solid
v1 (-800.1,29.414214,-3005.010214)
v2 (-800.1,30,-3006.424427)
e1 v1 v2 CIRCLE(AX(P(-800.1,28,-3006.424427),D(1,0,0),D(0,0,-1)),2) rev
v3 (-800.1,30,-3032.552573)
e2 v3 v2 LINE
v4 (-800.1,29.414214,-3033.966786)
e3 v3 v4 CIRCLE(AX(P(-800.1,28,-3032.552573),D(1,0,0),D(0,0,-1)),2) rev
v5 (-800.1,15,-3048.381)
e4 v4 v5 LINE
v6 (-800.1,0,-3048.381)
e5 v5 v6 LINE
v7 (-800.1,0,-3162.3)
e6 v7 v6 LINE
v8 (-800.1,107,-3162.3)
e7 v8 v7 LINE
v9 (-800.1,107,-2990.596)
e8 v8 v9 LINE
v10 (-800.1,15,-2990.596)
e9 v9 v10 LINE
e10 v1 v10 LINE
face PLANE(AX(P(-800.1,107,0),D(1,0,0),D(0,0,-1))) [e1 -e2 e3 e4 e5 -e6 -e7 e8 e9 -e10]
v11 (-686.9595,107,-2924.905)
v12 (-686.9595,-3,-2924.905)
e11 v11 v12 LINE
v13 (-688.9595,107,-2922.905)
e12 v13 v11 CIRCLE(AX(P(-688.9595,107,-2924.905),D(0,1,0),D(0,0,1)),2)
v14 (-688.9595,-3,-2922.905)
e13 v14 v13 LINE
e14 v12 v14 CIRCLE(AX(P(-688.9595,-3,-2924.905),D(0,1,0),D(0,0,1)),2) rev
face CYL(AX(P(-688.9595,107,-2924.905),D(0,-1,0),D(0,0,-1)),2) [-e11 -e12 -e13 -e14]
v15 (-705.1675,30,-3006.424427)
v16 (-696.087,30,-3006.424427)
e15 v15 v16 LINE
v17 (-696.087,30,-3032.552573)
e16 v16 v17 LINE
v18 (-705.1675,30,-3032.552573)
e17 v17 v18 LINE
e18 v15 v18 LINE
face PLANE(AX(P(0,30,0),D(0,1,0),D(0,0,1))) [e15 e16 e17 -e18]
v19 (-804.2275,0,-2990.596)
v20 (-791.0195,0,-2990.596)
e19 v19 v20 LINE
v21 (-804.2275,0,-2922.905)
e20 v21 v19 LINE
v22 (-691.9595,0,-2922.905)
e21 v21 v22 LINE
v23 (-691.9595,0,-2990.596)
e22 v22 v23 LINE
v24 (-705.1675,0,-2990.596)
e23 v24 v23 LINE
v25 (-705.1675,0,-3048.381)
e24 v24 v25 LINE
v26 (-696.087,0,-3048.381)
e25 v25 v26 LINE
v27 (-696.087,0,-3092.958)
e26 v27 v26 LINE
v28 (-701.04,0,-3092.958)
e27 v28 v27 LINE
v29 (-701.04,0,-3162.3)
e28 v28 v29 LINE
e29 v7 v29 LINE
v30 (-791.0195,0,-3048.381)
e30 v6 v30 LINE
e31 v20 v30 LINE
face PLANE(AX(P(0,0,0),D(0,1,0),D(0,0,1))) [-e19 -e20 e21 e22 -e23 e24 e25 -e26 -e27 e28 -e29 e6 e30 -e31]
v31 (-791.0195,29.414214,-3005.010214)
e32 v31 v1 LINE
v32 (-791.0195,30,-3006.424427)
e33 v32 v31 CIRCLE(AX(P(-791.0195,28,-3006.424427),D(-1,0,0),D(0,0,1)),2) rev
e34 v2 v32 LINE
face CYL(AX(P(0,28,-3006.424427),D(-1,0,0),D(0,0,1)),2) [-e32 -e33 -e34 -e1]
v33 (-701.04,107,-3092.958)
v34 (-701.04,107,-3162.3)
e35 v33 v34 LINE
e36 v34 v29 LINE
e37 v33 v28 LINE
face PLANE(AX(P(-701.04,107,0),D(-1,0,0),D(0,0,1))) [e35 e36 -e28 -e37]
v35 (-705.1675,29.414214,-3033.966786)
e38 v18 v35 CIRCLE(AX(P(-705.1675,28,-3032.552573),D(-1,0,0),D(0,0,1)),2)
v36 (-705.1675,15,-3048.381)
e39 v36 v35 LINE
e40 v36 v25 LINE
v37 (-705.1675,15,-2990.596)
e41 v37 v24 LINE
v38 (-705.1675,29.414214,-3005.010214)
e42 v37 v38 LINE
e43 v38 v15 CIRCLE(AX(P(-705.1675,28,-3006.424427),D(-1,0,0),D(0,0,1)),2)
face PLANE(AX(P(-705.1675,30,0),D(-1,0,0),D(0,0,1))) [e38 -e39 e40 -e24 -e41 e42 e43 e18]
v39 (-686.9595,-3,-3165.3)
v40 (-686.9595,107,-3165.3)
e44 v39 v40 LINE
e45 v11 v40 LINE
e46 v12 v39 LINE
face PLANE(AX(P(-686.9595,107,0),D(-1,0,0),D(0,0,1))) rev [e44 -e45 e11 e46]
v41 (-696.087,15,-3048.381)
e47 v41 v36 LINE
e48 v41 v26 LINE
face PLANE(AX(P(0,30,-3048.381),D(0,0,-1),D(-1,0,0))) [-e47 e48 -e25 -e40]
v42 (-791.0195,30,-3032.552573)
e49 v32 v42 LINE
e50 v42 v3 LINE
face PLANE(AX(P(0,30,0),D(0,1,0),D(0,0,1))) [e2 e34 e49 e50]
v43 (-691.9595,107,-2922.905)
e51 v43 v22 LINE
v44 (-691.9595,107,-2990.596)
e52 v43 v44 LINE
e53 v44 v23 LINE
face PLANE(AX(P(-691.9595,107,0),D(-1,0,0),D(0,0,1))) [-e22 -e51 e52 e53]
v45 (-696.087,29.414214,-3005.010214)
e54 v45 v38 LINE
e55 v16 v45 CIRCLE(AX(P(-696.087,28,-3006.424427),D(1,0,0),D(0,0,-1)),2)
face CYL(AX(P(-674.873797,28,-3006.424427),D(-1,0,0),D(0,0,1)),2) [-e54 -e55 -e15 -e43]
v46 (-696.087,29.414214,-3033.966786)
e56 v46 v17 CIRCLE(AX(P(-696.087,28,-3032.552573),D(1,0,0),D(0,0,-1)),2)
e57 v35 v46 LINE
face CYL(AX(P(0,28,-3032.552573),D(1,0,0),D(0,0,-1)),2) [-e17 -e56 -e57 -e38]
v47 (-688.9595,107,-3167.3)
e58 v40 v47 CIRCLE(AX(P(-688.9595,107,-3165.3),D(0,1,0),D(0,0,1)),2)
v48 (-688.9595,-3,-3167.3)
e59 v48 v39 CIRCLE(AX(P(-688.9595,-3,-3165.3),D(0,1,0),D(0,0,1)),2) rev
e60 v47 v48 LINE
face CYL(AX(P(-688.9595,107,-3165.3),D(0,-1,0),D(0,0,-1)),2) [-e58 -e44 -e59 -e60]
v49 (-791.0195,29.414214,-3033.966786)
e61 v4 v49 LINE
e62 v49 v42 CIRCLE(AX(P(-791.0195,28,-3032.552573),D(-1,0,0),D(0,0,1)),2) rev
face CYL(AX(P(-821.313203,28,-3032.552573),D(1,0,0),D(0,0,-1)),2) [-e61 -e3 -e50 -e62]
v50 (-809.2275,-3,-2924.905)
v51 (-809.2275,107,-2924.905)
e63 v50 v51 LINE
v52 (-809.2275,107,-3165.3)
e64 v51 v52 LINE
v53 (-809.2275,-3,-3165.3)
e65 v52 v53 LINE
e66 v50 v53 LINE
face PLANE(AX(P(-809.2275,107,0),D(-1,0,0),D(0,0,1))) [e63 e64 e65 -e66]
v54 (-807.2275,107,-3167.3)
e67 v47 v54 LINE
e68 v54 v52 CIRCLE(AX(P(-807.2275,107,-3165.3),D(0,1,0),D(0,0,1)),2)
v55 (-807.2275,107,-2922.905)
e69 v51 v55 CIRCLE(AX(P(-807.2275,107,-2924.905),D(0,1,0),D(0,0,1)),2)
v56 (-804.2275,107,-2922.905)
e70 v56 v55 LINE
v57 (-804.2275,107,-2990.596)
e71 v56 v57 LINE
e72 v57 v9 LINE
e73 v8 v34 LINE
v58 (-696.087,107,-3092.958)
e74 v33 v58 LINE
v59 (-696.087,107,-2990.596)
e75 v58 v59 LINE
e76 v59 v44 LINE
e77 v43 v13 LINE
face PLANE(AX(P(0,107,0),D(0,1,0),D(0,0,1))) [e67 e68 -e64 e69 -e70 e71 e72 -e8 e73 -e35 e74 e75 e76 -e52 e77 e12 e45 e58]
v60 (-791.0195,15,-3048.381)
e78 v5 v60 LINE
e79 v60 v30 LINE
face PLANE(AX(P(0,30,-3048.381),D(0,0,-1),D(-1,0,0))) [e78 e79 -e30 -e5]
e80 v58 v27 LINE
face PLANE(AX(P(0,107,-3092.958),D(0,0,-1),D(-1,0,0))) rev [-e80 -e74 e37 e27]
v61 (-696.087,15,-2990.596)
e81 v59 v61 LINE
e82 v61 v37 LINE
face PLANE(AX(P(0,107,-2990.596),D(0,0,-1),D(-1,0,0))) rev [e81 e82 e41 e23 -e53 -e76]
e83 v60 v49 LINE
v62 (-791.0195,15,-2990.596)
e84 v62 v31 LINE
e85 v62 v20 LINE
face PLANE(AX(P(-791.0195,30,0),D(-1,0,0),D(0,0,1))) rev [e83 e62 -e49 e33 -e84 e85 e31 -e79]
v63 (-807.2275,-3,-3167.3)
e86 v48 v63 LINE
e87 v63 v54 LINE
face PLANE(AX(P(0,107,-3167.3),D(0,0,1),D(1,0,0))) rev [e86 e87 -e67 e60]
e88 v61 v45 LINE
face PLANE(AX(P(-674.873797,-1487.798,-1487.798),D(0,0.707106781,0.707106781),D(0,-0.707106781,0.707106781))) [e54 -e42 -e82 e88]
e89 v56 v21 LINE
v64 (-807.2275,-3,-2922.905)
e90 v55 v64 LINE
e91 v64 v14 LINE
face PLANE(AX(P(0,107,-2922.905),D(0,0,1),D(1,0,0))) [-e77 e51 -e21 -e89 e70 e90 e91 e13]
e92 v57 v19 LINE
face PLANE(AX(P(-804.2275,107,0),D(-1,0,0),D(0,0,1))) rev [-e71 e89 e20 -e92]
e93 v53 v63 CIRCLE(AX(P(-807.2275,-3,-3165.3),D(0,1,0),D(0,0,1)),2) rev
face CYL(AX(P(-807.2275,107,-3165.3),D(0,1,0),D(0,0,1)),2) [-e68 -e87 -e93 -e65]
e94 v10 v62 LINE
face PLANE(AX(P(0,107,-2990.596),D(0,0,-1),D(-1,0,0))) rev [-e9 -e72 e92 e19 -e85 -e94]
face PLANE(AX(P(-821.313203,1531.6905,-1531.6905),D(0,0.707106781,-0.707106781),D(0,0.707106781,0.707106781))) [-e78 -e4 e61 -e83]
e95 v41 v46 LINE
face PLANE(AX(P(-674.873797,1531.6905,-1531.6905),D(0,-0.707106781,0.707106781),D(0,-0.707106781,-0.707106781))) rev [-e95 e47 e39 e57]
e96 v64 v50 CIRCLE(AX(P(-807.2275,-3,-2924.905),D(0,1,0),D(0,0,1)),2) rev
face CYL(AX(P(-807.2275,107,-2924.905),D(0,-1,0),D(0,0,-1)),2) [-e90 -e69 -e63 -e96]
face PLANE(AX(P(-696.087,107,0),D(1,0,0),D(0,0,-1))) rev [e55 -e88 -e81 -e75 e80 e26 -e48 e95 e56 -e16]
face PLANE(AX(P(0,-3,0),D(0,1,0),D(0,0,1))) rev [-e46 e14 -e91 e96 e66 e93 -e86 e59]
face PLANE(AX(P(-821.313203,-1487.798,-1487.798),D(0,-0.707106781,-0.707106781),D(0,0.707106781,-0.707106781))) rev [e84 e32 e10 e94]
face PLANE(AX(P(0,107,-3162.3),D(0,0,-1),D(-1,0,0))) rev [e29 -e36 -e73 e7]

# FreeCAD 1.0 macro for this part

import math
import FreeCAD as App
import Part
import Sketcher
from FreeCAD import Vector


def edges_at(feature, points):
    """Names of the edges that pass closest to the given points."""
    edges = feature.Shape.Edges
    near = lambda p: min(range(len(edges)), key=lambda i: edges[i].distToShape(Part.Vertex(*p))[0])
    return sorted({f"Edge{near(p) + 1}" for p in points})

doc = App.newDocument("Part")
body = doc.addObject("PartDesign::Body", "Body")

sketch1 = body.newObject("Sketcher::SketchObject", "Sketch")
sketch1.AttachmentSupport = (doc.getObject("XZ_Plane"), [""])
sketch1.MapMode = "FlatFace"
sketch1.addGeometry([
    Part.LineSegment(Vector(-809.2, -2922.9, 0), Vector(-804.2, -2922.9, 0)),
    Part.LineSegment(Vector(-804.2, -2922.9, 0), Vector(-804.2, -2990.6, 0)),
    Part.LineSegment(Vector(-804.2, -2990.6, 0), Vector(-800.1, -2990.6, 0)),
    Part.LineSegment(Vector(-800.1, -2990.6, 0), Vector(-800.1, -3162.3, 0)),
    Part.LineSegment(Vector(-800.1, -3162.3, 0), Vector(-701, -3162.3, 0)),
    Part.LineSegment(Vector(-701, -3162.3, 0), Vector(-701, -3093, 0)),
    Part.LineSegment(Vector(-701, -3093, 0), Vector(-696.1, -3093, 0)),
    Part.LineSegment(Vector(-696.1, -3093, 0), Vector(-696.1, -2990.6, 0)),
    Part.LineSegment(Vector(-696.1, -2990.6, 0), Vector(-692, -2990.6, 0)),
    Part.LineSegment(Vector(-692, -2990.6, 0), Vector(-692, -2922.9, 0)),
    Part.LineSegment(Vector(-692, -2922.9, 0), Vector(-687, -2922.9, 0)),
    Part.LineSegment(Vector(-687, -2922.9, 0), Vector(-687, -3167.3, 0)),
    Part.LineSegment(Vector(-687, -3167.3, 0), Vector(-809.2, -3167.3, 0)),
    Part.LineSegment(Vector(-809.2, -3167.3, 0), Vector(-809.2, -2922.9, 0)),
], False)
sketch1.addConstraint([
    Sketcher.Constraint("Coincident", 0, 2, 1, 1),
    Sketcher.Constraint("Coincident", 1, 2, 2, 1),
    Sketcher.Constraint("Coincident", 2, 2, 3, 1),
    Sketcher.Constraint("Coincident", 3, 2, 4, 1),
    Sketcher.Constraint("Coincident", 4, 2, 5, 1),
    Sketcher.Constraint("Coincident", 5, 2, 6, 1),
    Sketcher.Constraint("Coincident", 6, 2, 7, 1),
    Sketcher.Constraint("Coincident", 7, 2, 8, 1),
    Sketcher.Constraint("Coincident", 8, 2, 9, 1),
    Sketcher.Constraint("Coincident", 9, 2, 10, 1),
    Sketcher.Constraint("Coincident", 10, 2, 11, 1),
    Sketcher.Constraint("Coincident", 11, 2, 12, 1),
    Sketcher.Constraint("Coincident", 12, 2, 13, 1),
    Sketcher.Constraint("Coincident", 13, 2, 0, 1),
    Sketcher.Constraint("Horizontal", 0),
    Sketcher.Constraint("Vertical", 1),
    Sketcher.Constraint("Horizontal", 2),
    Sketcher.Constraint("Vertical", 3),
    Sketcher.Constraint("Horizontal", 4),
    Sketcher.Constraint("Vertical", 5),
    Sketcher.Constraint("Horizontal", 6),
    Sketcher.Constraint("Vertical", 7),
    Sketcher.Constraint("Horizontal", 8),
    Sketcher.Constraint("Vertical", 9),
    Sketcher.Constraint("Horizontal", 10),
    Sketcher.Constraint("Vertical", 11),
    Sketcher.Constraint("Horizontal", 12),
    Sketcher.Constraint("Vertical", 13),
    Sketcher.Constraint("Horizontal", 2, 2, 7, 2),
    Sketcher.Constraint("Horizontal", 0, 2, 9, 2),
    Sketcher.Constraint("Equal", 2, 8),
    Sketcher.Constraint("Equal", 0, 10),
    Sketcher.Constraint("DistanceX", 0, 1, 0, 2, 5.0),
    Sketcher.Constraint("DistanceY", 11, 2, 4, 2, 5.0),
    Sketcher.Constraint("DistanceX", 4, 1, 4, 2, 99.06),
    Sketcher.Constraint("DistanceX", 2, 2, -1, 1, 800.1),
    Sketcher.Constraint("DistanceY", 3, 2, -1, 1, 3162.3),
    Sketcher.Constraint("DistanceX", 6, 1, 6, 2, 4.953),
    Sketcher.Constraint("DistanceX", 12, 2, 12, 1, 122.268),
    Sketcher.Constraint("DistanceY", 1, 2, 1, 1, 67.691),
    Sketcher.Constraint("DistanceY", 3, 2, 3, 1, 171.704),
    Sketcher.Constraint("DistanceY", 5, 1, 5, 2, 69.342),
])
pad1 = body.newObject("PartDesign::Pad", "Pad")
pad1.Profile = sketch1
pad1.Length = 107
pad1.Reversed = True

sketch2 = body.newObject("Sketcher::SketchObject", "Sketch001")
sketch2.AttachmentSupport = (doc.getObject("XZ_Plane"), [""])
sketch2.MapMode = "FlatFace"
sketch2.addGeometry([
    Part.LineSegment(Vector(-809, -2918, 0), Vector(-809, -3167, 0)),
    Part.LineSegment(Vector(-809, -3167, 0), Vector(-687, -3167, 0)),
    Part.LineSegment(Vector(-687, -3167, 0), Vector(-687, -2918, 0)),
    Part.LineSegment(Vector(-687, -2918, 0), Vector(-809, -2918, 0)),
], False)
sketch2.addConstraint([
    Sketcher.Constraint("Coincident", 0, 2, 1, 1),
    Sketcher.Constraint("Coincident", 1, 2, 2, 1),
    Sketcher.Constraint("Coincident", 2, 2, 3, 1),
    Sketcher.Constraint("Coincident", 3, 2, 0, 1),
    Sketcher.Constraint("Vertical", 0),
    Sketcher.Constraint("Horizontal", 1),
    Sketcher.Constraint("Vertical", 2),
    Sketcher.Constraint("Horizontal", 3),
    Sketcher.Constraint("DistanceY", 0, 2, -1, 1, 3167.3),
    Sketcher.Constraint("DistanceX", 1, 1, 1, 2, 122.268),
    Sketcher.Constraint("DistanceY", 0, 2, 0, 1, 249.395),
    Sketcher.Constraint("DistanceX", 0, 2, -1, 1, 809.2275),
])
pad2 = body.newObject("PartDesign::Pad", "Pad001")
pad2.Profile = sketch2
pad2.Length = 3

sketch3 = body.newObject("Sketcher::SketchObject", "Sketch002")
sketch3.AttachmentSupport = (doc.getObject("XZ_Plane"), [""])
sketch3.MapMode = "FlatFace"
sketch3.addGeometry([
    Part.LineSegment(Vector(-800, -3048, 0), Vector(-800, -2991, 0)),
    Part.LineSegment(Vector(-800, -2991, 0), Vector(-791, -2991, 0)),
    Part.LineSegment(Vector(-791, -2991, 0), Vector(-791, -3048, 0)),
    Part.LineSegment(Vector(-791, -3048, 0), Vector(-800, -3048, 0)),
    Part.LineSegment(Vector(-705, -3048, 0), Vector(-705, -2991, 0)),
    Part.LineSegment(Vector(-705, -2991, 0), Vector(-696, -2991, 0)),
    Part.LineSegment(Vector(-696, -2991, 0), Vector(-696, -3048, 0)),
    Part.LineSegment(Vector(-696, -3048, 0), Vector(-705, -3048, 0)),
], False)
sketch3.addConstraint([
    Sketcher.Constraint("Coincident", 0, 2, 1, 1),
    Sketcher.Constraint("Coincident", 1, 2, 2, 1),
    Sketcher.Constraint("Coincident", 2, 2, 3, 1),
    Sketcher.Constraint("Coincident", 3, 2, 0, 1),
    Sketcher.Constraint("Coincident", 4, 2, 5, 1),
    Sketcher.Constraint("Coincident", 5, 2, 6, 1),
    Sketcher.Constraint("Coincident", 6, 2, 7, 1),
    Sketcher.Constraint("Coincident", 7, 2, 4, 1),
    Sketcher.Constraint("Vertical", 0),
    Sketcher.Constraint("Horizontal", 1),
    Sketcher.Constraint("Vertical", 2),
    Sketcher.Constraint("Horizontal", 3),
    Sketcher.Constraint("Vertical", 4),
    Sketcher.Constraint("Horizontal", 5),
    Sketcher.Constraint("Vertical", 6),
    Sketcher.Constraint("Horizontal", 7),
    Sketcher.Constraint("Horizontal", 1, 2, 4, 2),
    Sketcher.Constraint("Horizontal", 3, 2, 6, 2),
    Sketcher.Constraint("Equal", 3, 5),
    Sketcher.Constraint("DistanceX", 0, 2, -1, 1, 800.1),
    Sketcher.Constraint("DistanceY", 0, 1, 0, 2, 57.785),
    Sketcher.Constraint("DistanceX", 1, 1, 1, 2, 9.0805),
    Sketcher.Constraint("DistanceY", 0, 2, -1, 1, 2990.596),
    Sketcher.Constraint("DistanceX", 5, 2, -1, 1, 696.087),
])
pad3 = body.newObject("PartDesign::Pad", "Pad002")
pad3.Profile = sketch3
pad3.Length = 30
pad3.Reversed = True

sketch4 = body.newObject("Sketcher::SketchObject", "Sketch003")
sketch4.AttachmentSupport = (doc.getObject("YZ_Plane"), [""])
sketch4.MapMode = "FlatFace"
sketch4.AttachmentOffset = App.Placement(Vector(0, 0, -791.0195), App.Rotation())
sketch4.addGeometry([
    Part.LineSegment(Vector(30, -2991, 0), Vector(15, -2991, 0)),
    Part.LineSegment(Vector(15, -2991, 0), Vector(30, -3006, 0)),
    Part.LineSegment(Vector(30, -3006, 0), Vector(30, -2991, 0)),
    Part.LineSegment(Vector(30, -3048, 0), Vector(30, -3033, 0)),
    Part.LineSegment(Vector(30, -3033, 0), Vector(15, -3048, 0)),
    Part.LineSegment(Vector(15, -3048, 0), Vector(30, -3048, 0)),
], False)
sketch4.addConstraint([
    Sketcher.Constraint("Coincident", 0, 2, 1, 1),
    Sketcher.Constraint("Coincident", 1, 2, 2, 1),
    Sketcher.Constraint("Coincident", 2, 2, 0, 1),
    Sketcher.Constraint("Coincident", 3, 2, 4, 1),
    Sketcher.Constraint("Coincident", 4, 2, 5, 1),
    Sketcher.Constraint("Coincident", 5, 2, 3, 1),
    Sketcher.Constraint("Horizontal", 0),
    Sketcher.Constraint("Vertical", 2),
    Sketcher.Constraint("Vertical", 3),
    Sketcher.Constraint("Horizontal", 5),
    Sketcher.Constraint("Perpendicular", 1, 4),
    Sketcher.Constraint("Vertical", 2, 2, 3, 2),
    Sketcher.Constraint("Vertical", 0, 2, 4, 2),
    Sketcher.Constraint("Equal", 5, 2),
    Sketcher.Constraint("DistanceX", 0, 2, 0, 1, 15.0),
    Sketcher.Constraint("DistanceX", -1, 1, 0, 2, 15.0),
    Sketcher.Constraint("DistanceY", 0, 2, -1, 1, 2990.596),
    Sketcher.Constraint("DistanceY", 3, 2, -1, 1, 3033.381),
])
pocket1 = body.newObject("PartDesign::Pocket", "Pocket")
pocket1.Profile = sketch4
pocket1.Length = 9.0805

sketch5 = body.newObject("Sketcher::SketchObject", "Sketch004")
sketch5.AttachmentSupport = (doc.getObject("YZ_Plane"), [""])
sketch5.MapMode = "FlatFace"
sketch5.AttachmentOffset = App.Placement(Vector(0, 0, -705.1675), App.Rotation())
sketch5.addGeometry([
    Part.LineSegment(Vector(30, -3048, 0), Vector(15, -3048, 0)),
    Part.LineSegment(Vector(15, -3048, 0), Vector(30, -3033, 0)),
    Part.LineSegment(Vector(30, -3033, 0), Vector(30, -3048, 0)),
    Part.LineSegment(Vector(30, -2991, 0), Vector(30, -3006, 0)),
    Part.LineSegment(Vector(30, -3006, 0), Vector(15, -2991, 0)),
    Part.LineSegment(Vector(15, -2991, 0), Vector(30, -2991, 0)),
], False)
sketch5.addConstraint([
    Sketcher.Constraint("Coincident", 0, 2, 1, 1),
    Sketcher.Constraint("Coincident", 1, 2, 2, 1),
    Sketcher.Constraint("Coincident", 2, 2, 0, 1),
    Sketcher.Constraint("Coincident", 3, 2, 4, 1),
    Sketcher.Constraint("Coincident", 4, 2, 5, 1),
    Sketcher.Constraint("Coincident", 5, 2, 3, 1),
    Sketcher.Constraint("Horizontal", 0),
    Sketcher.Constraint("Vertical", 2),
    Sketcher.Constraint("Vertical", 3),
    Sketcher.Constraint("Horizontal", 5),
    Sketcher.Constraint("Perpendicular", 1, 4),
    Sketcher.Constraint("Vertical", 2, 2, 3, 2),
    Sketcher.Constraint("Vertical", 0, 2, 4, 2),
    Sketcher.Constraint("Equal", 5, 2),
    Sketcher.Constraint("DistanceX", 0, 2, 0, 1, 15.0),
    Sketcher.Constraint("DistanceX", -1, 1, 0, 2, 15.0),
    Sketcher.Constraint("DistanceY", 0, 2, -1, 1, 3048.381),
    Sketcher.Constraint("DistanceY", 3, 2, -1, 1, 3005.596),
])
pocket2 = body.newObject("PartDesign::Pocket", "Pocket001")
pocket2.Profile = sketch5
pocket2.Length = 9.0805
pocket2.Reversed = True
doc.recompute()

fillet = body.newObject("PartDesign::Fillet", "Fillet")
fillet.Base = (pocket2, edges_at(pocket2, [
    (-795.56, 30, -3005.596),
    (-795.56, 30, -3033.381),
    (-700.627, 30, -3033.381),
    (-700.627, 30, -3005.596),
    (-809.227, 53.5, -2922.905),
    (-809.227, 52, -3167.3),
    (-686.96, 52, -3167.3),
    (-686.96, 53.5, -2922.905),
]))
fillet.Radius = 2

sketch6 = body.newObject("Sketcher::SketchObject", "Sketch005")
sketch6.AttachmentSupport = (doc.getObject("XZ_Plane"), [""])
sketch6.MapMode = "FlatFace"
sketch6.addGeometry([
    Part.ArcOfCircle(Part.Circle(Vector(-689, -2924.9, 0), Vector(0, 0, 1), 2), math.radians(0), math.radians(90)),
    Part.LineSegment(Vector(-689, -2922.9, 0), Vector(-807.2, -2922.9, 0)),
    Part.ArcOfCircle(Part.Circle(Vector(-807.2, -2924.9, 0), Vector(0, 0, 1), 2), math.radians(90), math.radians(180)),
    Part.LineSegment(Vector(-809.2, -2924.9, 0), Vector(-809.2, -2917.9, 0)),
    Part.LineSegment(Vector(-809.2, -2917.9, 0), Vector(-687, -2917.9, 0)),
    Part.LineSegment(Vector(-687, -2917.9, 0), Vector(-687, -2924.9, 0)),
], False)
sketch6.addConstraint([
    Sketcher.Constraint("Tangent", 0, 2, 1, 1),
    Sketcher.Constraint("Tangent", 1, 2, 2, 1),
    Sketcher.Constraint("Tangent", 2, 2, 3, 1),
    Sketcher.Constraint("Coincident", 3, 2, 4, 1),
    Sketcher.Constraint("Coincident", 4, 2, 5, 1),
    Sketcher.Constraint("Tangent", 5, 2, 0, 1),
    Sketcher.Constraint("Horizontal", 1),
    Sketcher.Constraint("Vertical", 3),
    Sketcher.Constraint("Horizontal", 4),
    Sketcher.Constraint("Vertical", 5),
    Sketcher.Constraint("Equal", 0, 2),
    Sketcher.Constraint("Radius", 0, 2.0),
    Sketcher.Constraint("DistanceY", 3, 1, 3, 2, 7.0),
    Sketcher.Constraint("DistanceX", 1, 2, 1, 1, 118.268),
    Sketcher.Constraint("DistanceY", 0, 3, -1, 1, 2924.905),
    Sketcher.Constraint("DistanceX", 0, 3, -1, 1, 688.9595),
])
pocket3 = body.newObject("PartDesign::Pocket", "Pocket002")
pocket3.Profile = sketch6
pocket3.Type = "ThroughAll"
pocket3.Reversed = True

doc.recompute()
